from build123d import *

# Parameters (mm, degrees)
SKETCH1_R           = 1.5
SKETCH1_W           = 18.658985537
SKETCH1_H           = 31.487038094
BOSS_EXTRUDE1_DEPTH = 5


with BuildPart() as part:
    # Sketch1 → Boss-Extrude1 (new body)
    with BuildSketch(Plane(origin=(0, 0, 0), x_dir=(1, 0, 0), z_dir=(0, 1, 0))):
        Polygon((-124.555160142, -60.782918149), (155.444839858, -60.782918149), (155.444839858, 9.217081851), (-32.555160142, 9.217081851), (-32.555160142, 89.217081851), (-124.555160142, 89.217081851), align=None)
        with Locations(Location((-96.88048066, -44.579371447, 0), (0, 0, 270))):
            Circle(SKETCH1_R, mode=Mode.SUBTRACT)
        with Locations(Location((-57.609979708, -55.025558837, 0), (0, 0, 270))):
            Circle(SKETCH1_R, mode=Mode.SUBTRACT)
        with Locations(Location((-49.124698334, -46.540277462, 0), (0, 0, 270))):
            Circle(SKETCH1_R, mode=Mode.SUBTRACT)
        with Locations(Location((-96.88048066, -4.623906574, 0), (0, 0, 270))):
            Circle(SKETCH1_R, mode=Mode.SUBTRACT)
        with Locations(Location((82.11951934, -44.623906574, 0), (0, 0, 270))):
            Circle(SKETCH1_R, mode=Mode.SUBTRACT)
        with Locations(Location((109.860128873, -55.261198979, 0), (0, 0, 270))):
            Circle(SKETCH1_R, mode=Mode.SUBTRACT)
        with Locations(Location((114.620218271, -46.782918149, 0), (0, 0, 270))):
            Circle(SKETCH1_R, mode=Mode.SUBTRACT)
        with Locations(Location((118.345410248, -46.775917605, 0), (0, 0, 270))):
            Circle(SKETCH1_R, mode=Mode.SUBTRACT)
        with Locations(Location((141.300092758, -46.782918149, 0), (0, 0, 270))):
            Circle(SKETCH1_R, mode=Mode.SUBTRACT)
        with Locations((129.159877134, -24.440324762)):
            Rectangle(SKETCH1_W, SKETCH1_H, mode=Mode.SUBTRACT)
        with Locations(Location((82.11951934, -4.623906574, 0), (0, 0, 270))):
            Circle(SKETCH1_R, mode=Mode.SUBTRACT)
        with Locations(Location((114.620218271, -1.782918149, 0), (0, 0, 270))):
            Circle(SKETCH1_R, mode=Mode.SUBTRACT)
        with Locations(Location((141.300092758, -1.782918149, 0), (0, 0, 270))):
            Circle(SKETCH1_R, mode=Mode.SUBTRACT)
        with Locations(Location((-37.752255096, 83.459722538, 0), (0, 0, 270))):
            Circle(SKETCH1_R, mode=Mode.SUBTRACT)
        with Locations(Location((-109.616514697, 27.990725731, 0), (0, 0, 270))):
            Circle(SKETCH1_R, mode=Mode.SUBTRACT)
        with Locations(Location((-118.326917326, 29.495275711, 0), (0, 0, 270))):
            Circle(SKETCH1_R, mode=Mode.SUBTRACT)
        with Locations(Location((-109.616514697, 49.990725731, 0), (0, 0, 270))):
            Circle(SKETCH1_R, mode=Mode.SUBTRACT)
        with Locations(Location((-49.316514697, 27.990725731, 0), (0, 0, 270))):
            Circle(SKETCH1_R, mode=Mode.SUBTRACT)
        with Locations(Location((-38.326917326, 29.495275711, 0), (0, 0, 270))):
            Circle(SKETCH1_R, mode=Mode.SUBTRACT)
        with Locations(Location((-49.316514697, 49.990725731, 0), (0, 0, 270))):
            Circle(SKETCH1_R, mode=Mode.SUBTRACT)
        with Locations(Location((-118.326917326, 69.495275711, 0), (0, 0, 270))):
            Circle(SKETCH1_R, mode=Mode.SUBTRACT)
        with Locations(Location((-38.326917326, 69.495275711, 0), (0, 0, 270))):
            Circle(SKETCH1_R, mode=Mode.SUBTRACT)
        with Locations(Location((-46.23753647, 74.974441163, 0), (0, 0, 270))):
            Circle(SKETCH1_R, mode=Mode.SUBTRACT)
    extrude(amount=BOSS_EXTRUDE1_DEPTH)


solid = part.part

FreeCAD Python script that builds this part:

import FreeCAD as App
import Part
import Sketcher
from FreeCAD import Vector
Q = App.Units.Quantity

doc = App.newDocument("Part")
body = doc.addObject("PartDesign::Body", "Body")

sketch1 = body.newObject("Sketcher::SketchObject", "Sketch")
sketch1.AttachmentSupport = (doc.getObject("XZ_Plane"), [""])
sketch1.MapMode = "FlatFace"
sketch1.addGeometry(Part.LineSegment(Vector(-124.6, 60.8, 0), Vector(155.4, 60.8, 0)), False)
sketch1.addGeometry(Part.LineSegment(Vector(155.4, 60.8, 0), Vector(155.4, -9.2, 0)), False)
sketch1.addGeometry(Part.LineSegment(Vector(155.4, -9.2, 0), Vector(-32.6, -9.2, 0)), False)
sketch1.addGeometry(Part.LineSegment(Vector(-32.6, -9.2, 0), Vector(-32.6, -89.2, 0)), False)
sketch1.addGeometry(Part.LineSegment(Vector(-32.6, -89.2, 0), Vector(-124.6, -89.2, 0)), False)
sketch1.addGeometry(Part.LineSegment(Vector(-124.6, -89.2, 0), Vector(-124.6, 60.8, 0)), False)
sketch1.addGeometry(Part.Circle(Vector(-96.9, 44.6, 0), Vector(0, 0, 1), 1.5), False)
sketch1.addGeometry(Part.Circle(Vector(-57.6, 55, 0), Vector(0, 0, 1), 1.5), False)
sketch1.addGeometry(Part.Circle(Vector(-49.1, 46.5, 0), Vector(0, 0, 1), 1.5), False)
sketch1.addGeometry(Part.Circle(Vector(-96.9, 4.6, 0), Vector(0, 0, 1), 1.5), False)
sketch1.addGeometry(Part.Circle(Vector(109.9, 55.3, 0), Vector(0, 0, 1), 1.5), False)
sketch1.addGeometry(Part.Circle(Vector(82.1, 44.6, 0), Vector(0, 0, 1), 1.5), False)
sketch1.addGeometry(Part.Circle(Vector(114.6, 46.8, 0), Vector(0, 0, 1), 1.5), False)
sketch1.addGeometry(Part.Circle(Vector(118.3, 46.8, 0), Vector(0, 0, 1), 1.5), False)
sketch1.addGeometry(Part.Circle(Vector(141.3, 46.8, 0), Vector(0, 0, 1), 1.5), False)
sketch1.addGeometry(Part.LineSegment(Vector(138.5, 40.2, 0), Vector(119.8, 40.2, 0)), False)
sketch1.addGeometry(Part.LineSegment(Vector(119.8, 40.2, 0), Vector(119.8, 8.7, 0)), False)
sketch1.addGeometry(Part.LineSegment(Vector(119.8, 8.7, 0), Vector(138.5, 8.7, 0)), False)
sketch1.addGeometry(Part.LineSegment(Vector(138.5, 8.7, 0), Vector(138.5, 40.2, 0)), False)
sketch1.addGeometry(Part.Circle(Vector(82.1, 4.6, 0), Vector(0, 0, 1), 1.5), False)
sketch1.addGeometry(Part.Circle(Vector(114.6, 1.8, 0), Vector(0, 0, 1), 1.5), False)
sketch1.addGeometry(Part.Circle(Vector(141.3, 1.8, 0), Vector(0, 0, 1), 1.5), False)
sketch1.addGeometry(Part.Circle(Vector(-118.3, -29.5, 0), Vector(0, 0, 1), 1.5), False)
sketch1.addGeometry(Part.Circle(Vector(-109.6, -28, 0), Vector(0, 0, 1), 1.5), False)
sketch1.addGeometry(Part.Circle(Vector(-49.3, -28, 0), Vector(0, 0, 1), 1.5), False)
sketch1.addGeometry(Part.Circle(Vector(-38.3, -29.5, 0), Vector(0, 0, 1), 1.5), False)
sketch1.addGeometry(Part.Circle(Vector(-109.6, -50, 0), Vector(0, 0, 1), 1.5), False)
sketch1.addGeometry(Part.Circle(Vector(-118.3, -69.5, 0), Vector(0, 0, 1), 1.5), False)
sketch1.addGeometry(Part.Circle(Vector(-49.3, -50, 0), Vector(0, 0, 1), 1.5), False)
sketch1.addGeometry(Part.Circle(Vector(-38.3, -69.5, 0), Vector(0, 0, 1), 1.5), False)
sketch1.addGeometry(Part.Circle(Vector(-46.2, -75, 0), Vector(0, 0, 1), 1.5), False)
sketch1.addGeometry(Part.Circle(Vector(-37.8, -83.5, 0), Vector(0, 0, 1), 1.5), False)
sketch1.addConstraint(Sketcher.Constraint("Coincident", 0, 2, 1, 1))
sketch1.addConstraint(Sketcher.Constraint("Coincident", 1, 2, 2, 1))
sketch1.addConstraint(Sketcher.Constraint("Coincident", 2, 2, 3, 1))
sketch1.addConstraint(Sketcher.Constraint("Coincident", 3, 2, 4, 1))
sketch1.addConstraint(Sketcher.Constraint("Coincident", 4, 2, 5, 1))
sketch1.addConstraint(Sketcher.Constraint("Coincident", 5, 2, 0, 1))
sketch1.addConstraint(Sketcher.Constraint("Coincident", 15, 2, 16, 1))
sketch1.addConstraint(Sketcher.Constraint("Coincident", 16, 2, 17, 1))
sketch1.addConstraint(Sketcher.Constraint("Coincident", 17, 2, 18, 1))
sketch1.addConstraint(Sketcher.Constraint("Coincident", 18, 2, 15, 1))
sketch1.addConstraint(Sketcher.Constraint("Horizontal", 0))
sketch1.addConstraint(Sketcher.Constraint("Vertical", 1))
sketch1.addConstraint(Sketcher.Constraint("Horizontal", 2))
sketch1.addConstraint(Sketcher.Constraint("Vertical", 3))
sketch1.addConstraint(Sketcher.Constraint("Horizontal", 4))
sketch1.addConstraint(Sketcher.Constraint("Vertical", 5))
sketch1.addConstraint(Sketcher.Constraint("Horizontal", 15))
sketch1.addConstraint(Sketcher.Constraint("Vertical", 16))
sketch1.addConstraint(Sketcher.Constraint("Horizontal", 17))
sketch1.addConstraint(Sketcher.Constraint("Vertical", 18))
sketch1.addConstraint(Sketcher.Constraint("Equal", 6, 7))
sketch1.addConstraint(Sketcher.Constraint("Equal", 7, 8))
sketch1.addConstraint(Sketcher.Constraint("Equal", 8, 9))
sketch1.addConstraint(Sketcher.Constraint("Equal", 9, 10))
sketch1.addConstraint(Sketcher.Constraint("Equal", 10, 11))
sketch1.addConstraint(Sketcher.Constraint("Equal", 11, 12))
sketch1.addConstraint(Sketcher.Constraint("Equal", 12, 13))
sketch1.addConstraint(Sketcher.Constraint("Equal", 13, 14))
sketch1.addConstraint(Sketcher.Constraint("Equal", 14, 19))
sketch1.addConstraint(Sketcher.Constraint("Equal", 19, 20))
sketch1.addConstraint(Sketcher.Constraint("Equal", 20, 21))
sketch1.addConstraint(Sketcher.Constraint("Equal", 21, 22))
sketch1.addConstraint(Sketcher.Constraint("Equal", 22, 23))
sketch1.addConstraint(Sketcher.Constraint("Equal", 23, 24))
sketch1.addConstraint(Sketcher.Constraint("Equal", 24, 25))
sketch1.addConstraint(Sketcher.Constraint("Equal", 25, 26))
sketch1.addConstraint(Sketcher.Constraint("Equal", 26, 27))
sketch1.addConstraint(Sketcher.Constraint("Equal", 27, 28))
sketch1.addConstraint(Sketcher.Constraint("Equal", 28, 29))
sketch1.addConstraint(Sketcher.Constraint("Equal", 29, 30))
sketch1.addConstraint(Sketcher.Constraint("Equal", 30, 31))
sketch1.addConstraint(Sketcher.Constraint("Horizontal", 12, 3, 14, 3))
sketch1.addConstraint(Sketcher.Constraint("Horizontal", 9, 3, 19, 3))
sketch1.addConstraint(Sketcher.Constraint("Horizontal", 20, 3, 21, 3))
sketch1.addConstraint(Sketcher.Constraint("Horizontal", 23, 3, 24, 3))
sketch1.addConstraint(Sketcher.Constraint("Horizontal", 22, 3, 25, 3))
sketch1.addConstraint(Sketcher.Constraint("Horizontal", 26, 3, 28, 3))
sketch1.addConstraint(Sketcher.Constraint("Horizontal", 27, 3, 29, 3))
sketch1.addConstraint(Sketcher.Constraint("Vertical", 6, 3, 9, 3))
sketch1.addConstraint(Sketcher.Constraint("Vertical", 11, 3, 19, 3))
sketch1.addConstraint(Sketcher.Constraint("Vertical", 12, 3, 20, 3))
sketch1.addConstraint(Sketcher.Constraint("Vertical", 14, 3, 21, 3))
sketch1.addConstraint(Sketcher.Constraint("Vertical", 23, 3, 26, 3))
sketch1.addConstraint(Sketcher.Constraint("Vertical", 22, 3, 27, 3))
sketch1.addConstraint(Sketcher.Constraint("Vertical", 24, 3, 28, 3))
sketch1.addConstraint(Sketcher.Constraint("Vertical", 25, 3, 29, 3))
sketch1.addConstraint(Sketcher.Constraint("Diameter", 6, Q("3 mm")))
sketch1.addConstraint(Sketcher.Constraint("DistanceX", 0, 1, 0, 2, Q("280 mm")))
sketch1.addConstraint(Sketcher.Constraint("DistanceX", 2, 2, 2, 1, Q("188 mm")))
sketch1.addConstraint(Sketcher.Constraint("DistanceY", 1, 2, 1, 1, Q("70 mm")))
sketch1.addConstraint(Sketcher.Constraint("DistanceY", 3, 2, 3, 1, Q("80 mm")))
sketch1.addConstraint(Sketcher.Constraint("DistanceX", 6, 3, 11, 3, Q("179 mm")))
sketch1.addConstraint(Sketcher.Constraint("DistanceY", 9, 3, 11, 3, Q("40 mm")))
sketch1.addConstraint(Sketcher.Constraint("DistanceY", 20, 3, 12, 3, Q("45 mm")))
sketch1.addConstraint(Sketcher.Constraint("DistanceX", 22, 3, 25, 3, Q("80 mm")))
sketch1.addConstraint(Sketcher.Constraint("DistanceY", 26, 3, 23, 3, Q("22 mm")))
sketch1.addConstraint(Sketcher.Constraint("DistanceY", 27, 3, 22, 3, Q("40 mm")))
sketch1.addConstraint(Sketcher.Constraint("DistanceY", 14, 3, 0, 2, Q("14 mm")))
sketch1.addConstraint(Sketcher.Constraint("DistanceX", 23, 3, 24, 3, Q("60.3 mm")))
sketch1.addConstraint(Sketcher.Constraint("DistanceY", 13, 3, 12, 3, Q("0.007001 mm")))
sketch1.addConstraint(Sketcher.Constraint("DistanceY", 16, 2, 16, 1, Q("31.487038 mm")))
sketch1.addConstraint(Sketcher.Constraint("DistanceX", 8, 3, -1, 1, Q("49.124698 mm")))
sketch1.addConstraint(Sketcher.Constraint("DistanceY", -1, 1, 10, 3, Q("55.261199 mm")))
sketch1.addConstraint(Sketcher.Constraint("DistanceX", 6, 3, 7, 3, Q("39.270501 mm")))
sketch1.addConstraint(Sketcher.Constraint("DistanceX", 11, 3, 12, 3, Q("32.500699 mm")))
sketch1.addConstraint(Sketcher.Constraint("DistanceY", 19, 3, 16, 2, Q("4.072899 mm")))
sketch1.addConstraint(Sketcher.Constraint("DistanceX", 15, 2, 15, 1, Q("18.658986 mm")))
sketch1.addConstraint(Sketcher.Constraint("DistanceX", 6, 3, -1, 1, Q("96.880481 mm")))
sketch1.addConstraint(Sketcher.Constraint("DistanceY", -1, 1, 6, 3, Q("44.579371 mm")))
sketch1.addConstraint(Sketcher.Constraint("DistanceY", -1, 1, 7, 3, Q("55.025559 mm")))
sketch1.addConstraint(Sketcher.Constraint("DistanceX", -1, 1, 10, 3, Q("109.860129 mm")))
sketch1.addConstraint(Sketcher.Constraint("DistanceY", -1, 1, 12, 3, Q("46.782918 mm")))
sketch1.addConstraint(Sketcher.Constraint("DistanceX", -1, 1, 13, 3, Q("118.34541 mm")))
sketch1.addConstraint(Sketcher.Constraint("DistanceY", 30, 3, -1, 1, Q("74.974441 mm")))
sketch1.addConstraint(Sketcher.Constraint("DistanceX", -1, 1, 0, 2, Q("155.44484 mm")))
sketch1.addConstraint(Sketcher.Constraint("DistanceX", -1, 1, 17, 2, Q("138.48937 mm")))
sketch1.addConstraint(Sketcher.Constraint("DistanceY", 8, 3, 7, 3, Q("8.485281 mm")))
sketch1.addConstraint(Sketcher.Constraint("DistanceY", 9, 3, 8, 3, Q("41.916371 mm")))
sketch1.addConstraint(Sketcher.Constraint("DistanceX", 8, 3, 14, 3, Q("190.424791 mm")))
sketch1.addConstraint(Sketcher.Constraint("DistanceX", 22, 3, 8, 3, Q("69.202219 mm")))
sketch1.addConstraint(Sketcher.Constraint("DistanceY", 22, 3, 23, 3, Q("1.50455 mm")))
sketch1.addConstraint(Sketcher.Constraint("DistanceX", 30, 3, 29, 3, Q("7.910619 mm")))
sketch1.addConstraint(Sketcher.Constraint("DistanceX", 28, 3, 30, 3, Q("3.078978 mm")))
sketch1.addConstraint(Sketcher.Constraint("DistanceX", 30, 3, 31, 3, Q("8.485281 mm")))
sketch1.addConstraint(Sketcher.Constraint("DistanceY", 31, 3, 30, 3, Q("8.485281 mm")))
sketch1.addConstraint(Sketcher.Constraint("DistanceY", 22, 3, -1, 1, Q("29.495276 mm")))
pad1 = body.newObject("PartDesign::Pad", "Pad")
pad1.Profile = sketch1
pad1.Length = 5
pad1.Reversed = True

doc.recompute()
